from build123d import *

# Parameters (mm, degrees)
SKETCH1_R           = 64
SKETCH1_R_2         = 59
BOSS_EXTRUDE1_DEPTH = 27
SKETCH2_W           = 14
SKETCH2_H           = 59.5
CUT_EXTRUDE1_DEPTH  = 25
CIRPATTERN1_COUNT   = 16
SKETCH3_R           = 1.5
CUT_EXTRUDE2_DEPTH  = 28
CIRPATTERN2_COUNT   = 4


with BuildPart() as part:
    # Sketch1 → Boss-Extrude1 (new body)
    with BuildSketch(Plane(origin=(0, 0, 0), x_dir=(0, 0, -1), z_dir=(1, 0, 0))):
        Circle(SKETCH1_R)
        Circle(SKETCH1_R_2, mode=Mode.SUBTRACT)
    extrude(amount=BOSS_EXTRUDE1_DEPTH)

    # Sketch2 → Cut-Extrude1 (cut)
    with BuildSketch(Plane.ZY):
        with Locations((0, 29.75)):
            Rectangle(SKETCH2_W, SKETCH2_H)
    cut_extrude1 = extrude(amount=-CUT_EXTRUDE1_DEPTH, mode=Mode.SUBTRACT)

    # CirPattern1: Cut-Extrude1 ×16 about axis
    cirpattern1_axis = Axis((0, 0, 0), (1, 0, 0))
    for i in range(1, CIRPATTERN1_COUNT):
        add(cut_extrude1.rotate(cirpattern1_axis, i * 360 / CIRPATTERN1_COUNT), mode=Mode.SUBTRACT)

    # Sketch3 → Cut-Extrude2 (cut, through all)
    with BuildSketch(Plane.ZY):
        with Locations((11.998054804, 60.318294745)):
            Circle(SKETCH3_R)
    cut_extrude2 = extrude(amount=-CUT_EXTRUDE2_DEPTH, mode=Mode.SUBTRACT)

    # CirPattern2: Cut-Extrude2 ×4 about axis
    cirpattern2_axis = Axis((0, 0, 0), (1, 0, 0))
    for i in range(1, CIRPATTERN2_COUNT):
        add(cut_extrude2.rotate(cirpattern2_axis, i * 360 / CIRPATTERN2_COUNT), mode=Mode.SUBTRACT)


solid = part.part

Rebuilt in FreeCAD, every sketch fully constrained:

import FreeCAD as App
import Part
import Sketcher

V = App.Vector
Q = App.Units.Quantity

doc = App.newDocument("Part")
body = doc.addObject("PartDesign::Body", "Body")

sketch1 = doc.addObject("Sketcher::SketchObject", "Sketch")
body.addObject(sketch1)
sketch1.AttachmentSupport = (doc.YZ_Plane, [""])
sketch1.MapMode = "FlatFace"
sketch1.addGeometry(Part.Circle(V(0, 0, 0), V(0, 0, 1), 64), False)
sketch1.addGeometry(Part.Circle(V(0, 0, 0), V(0, 0, 1), 59), False)
sketch1.addConstraint(Sketcher.Constraint("Coincident", 0, 3, -1, 1))
sketch1.addConstraint(Sketcher.Constraint("Coincident", 1, 3, -1, 1))
sketch1.addConstraint(Sketcher.Constraint("Diameter", 0, Q("128 mm")))
sketch1.addConstraint(Sketcher.Constraint("Diameter", 1, Q("118 mm")))
pad1 = doc.addObject("PartDesign::Pad", "Pad")
body.addObject(pad1)
pad1.Profile = sketch1
pad1.Length = 27

sketch2 = doc.addObject("Sketcher::SketchObject", "Sketch001")
body.addObject(sketch2)
sketch2.AttachmentSupport = (doc.YZ_Plane, [""])
sketch2.MapMode = "FlatFace"
sketch2.addGeometry(Part.LineSegment(V(60, -7, 0), V(0, -7, 0)), False)
sketch2.addGeometry(Part.LineSegment(V(0, -7, 0), V(0, 7, 0)), False)
sketch2.addGeometry(Part.LineSegment(V(0, 7, 0), V(60, 7, 0)), False)
sketch2.addGeometry(Part.LineSegment(V(60, 7, 0), V(60, -7, 0)), False)
sketch2.addConstraint(Sketcher.Constraint("Coincident", 0, 2, 1, 1))
sketch2.addConstraint(Sketcher.Constraint("Coincident", 1, 2, 2, 1))
sketch2.addConstraint(Sketcher.Constraint("Coincident", 2, 2, 3, 1))
sketch2.addConstraint(Sketcher.Constraint("Coincident", 3, 2, 0, 1))
sketch2.addConstraint(Sketcher.Constraint("Horizontal", 0))
sketch2.addConstraint(Sketcher.Constraint("Vertical", 1))
sketch2.addConstraint(Sketcher.Constraint("Horizontal", 2))
sketch2.addConstraint(Sketcher.Constraint("Vertical", 3))
sketch2.addConstraint(Sketcher.Constraint("Symmetric", 0, 2, 1, 2, -1, 1))
sketch2.addConstraint(Sketcher.Constraint("DistanceY", 1, 1, 1, 2, Q("14 mm")))
sketch2.addConstraint(Sketcher.Constraint("DistanceX", 0, 2, 0, 1, Q("59.5 mm")))
pocket1 = doc.addObject("PartDesign::Pocket", "Pocket")
body.addObject(pocket1)
pocket1.Profile = sketch2
pocket1.Length = 25
pocket1.Reversed = True
doc.recompute()

polarpattern = doc.addObject("PartDesign::PolarPattern", "PolarPattern")
body.addObject(polarpattern)
polarpattern.Originals = [pocket1]
polarpattern.Axis = (doc.X_Axis, [""])
polarpattern.Angle = 360
polarpattern.Occurrences = 16
body.Tip = polarpattern

sketch3 = doc.addObject("Sketcher::SketchObject", "Sketch002")
body.addObject(sketch3)
sketch3.AttachmentSupport = (doc.YZ_Plane, [""])
sketch3.MapMode = "FlatFace"
sketch3.addGeometry(Part.Circle(V(60.3, 12, 0), V(0, 0, 1), 1.5), False)
sketch3.addConstraint(Sketcher.Constraint("Diameter", 0, Q("3 mm")))
sketch3.addConstraint(Sketcher.Constraint("DistanceX", -1, 1, 0, 3, Q("60.318295 mm")))
sketch3.addConstraint(Sketcher.Constraint("DistanceY", -1, 1, 0, 3, Q("11.998055 mm")))
pocket2 = doc.addObject("PartDesign::Pocket", "Pocket001")
body.addObject(pocket2)
pocket2.Profile = sketch3
pocket2.Type = "ThroughAll"
pocket2.Reversed = True
doc.recompute()

polarpattern2 = doc.addObject("PartDesign::PolarPattern", "PolarPattern001")
body.addObject(polarpattern2)
polarpattern2.Originals = [pocket2]
polarpattern2.Axis = (doc.X_Axis, [""])
polarpattern2.Angle = 360
polarpattern2.Occurrences = 4
body.Tip = polarpattern2

doc.recompute()
